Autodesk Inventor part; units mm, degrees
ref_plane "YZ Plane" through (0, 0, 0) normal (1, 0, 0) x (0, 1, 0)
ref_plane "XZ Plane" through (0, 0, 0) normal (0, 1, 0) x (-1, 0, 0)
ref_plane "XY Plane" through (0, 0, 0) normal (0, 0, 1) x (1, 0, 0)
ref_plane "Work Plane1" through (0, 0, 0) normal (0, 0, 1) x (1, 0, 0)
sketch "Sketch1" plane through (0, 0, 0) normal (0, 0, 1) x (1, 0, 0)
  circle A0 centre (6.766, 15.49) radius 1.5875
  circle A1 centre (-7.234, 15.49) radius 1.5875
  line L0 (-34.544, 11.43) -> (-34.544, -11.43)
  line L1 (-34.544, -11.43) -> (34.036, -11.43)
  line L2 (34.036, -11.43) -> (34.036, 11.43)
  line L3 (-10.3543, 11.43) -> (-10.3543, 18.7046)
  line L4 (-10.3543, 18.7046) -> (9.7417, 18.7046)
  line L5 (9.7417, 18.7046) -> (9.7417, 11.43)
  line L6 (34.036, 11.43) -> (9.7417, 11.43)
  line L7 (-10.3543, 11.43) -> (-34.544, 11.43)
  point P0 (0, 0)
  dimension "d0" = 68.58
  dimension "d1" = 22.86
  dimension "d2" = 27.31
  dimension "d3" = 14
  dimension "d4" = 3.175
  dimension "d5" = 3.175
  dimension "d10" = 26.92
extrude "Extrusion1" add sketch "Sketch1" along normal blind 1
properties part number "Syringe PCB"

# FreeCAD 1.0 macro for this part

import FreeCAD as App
import Part
import Sketcher
Q = App.Units.Quantity


def add_polygon(sketch, points):
    """Adds a closed chain of lines whose ends are joined by coincident constraints."""
    first, n = sketch.GeometryCount, len(points)
    for a, b in zip(points, points[1:] + points[:1]):
        sketch.addGeometry(Part.LineSegment(App.Vector(*a, 0), App.Vector(*b, 0)), False)
    for i in range(n):
        sketch.addConstraint(Sketcher.Constraint("Coincident", first + i, 2, first + (i + 1) % n, 1))

doc = App.newDocument("Part")
body = doc.addObject("PartDesign::Body", "Body")

sketch1 = doc.addObject("Sketcher::SketchObject", "Sketch")
body.addObject(sketch1)
sketch1.AttachmentSupport = (doc.XY_Plane, [""])
sketch1.MapMode = "FlatFace"
add_polygon(sketch1, [(-10.3543, 11.43), (-34.544, 11.43), (-34.544, -11.43), (34.036, -11.43), (34.036, 11.43), (9.7417, 11.43), (9.7417, 18.7046), (-10.3543, 18.7046)])
sketch1.addGeometry(Part.Circle(App.Vector(-7.234, 15.49, 0), App.Vector(0, 0, 1), 1.5875), False)
sketch1.addGeometry(Part.Circle(App.Vector(6.766, 15.49, 0), App.Vector(0, 0, 1), 1.5875), False)
sketch1.addConstraint([
    Sketcher.Constraint("Horizontal", 0),
    Sketcher.Constraint("Vertical", 1),
    Sketcher.Constraint("Horizontal", 2),
    Sketcher.Constraint("Vertical", 3),
    Sketcher.Constraint("Horizontal", 4),
    Sketcher.Constraint("Vertical", 5),
    Sketcher.Constraint("Horizontal", 6),
    Sketcher.Constraint("Vertical", 7),
    Sketcher.Constraint("Equal", 8, 9),
    Sketcher.Constraint("Horizontal", 8, 3, 9, 3),
    Sketcher.Constraint("Horizontal", 0, 2, 3, 2),
    Sketcher.Constraint("Diameter", 8, Q("0.125 in")),
    Sketcher.Constraint("DistanceX", 2, 1, 2, 2, Q("2.7 in")),
    Sketcher.Constraint("DistanceY", 1, 2, 1, 1, Q("0.9 in")),
    Sketcher.Constraint("DistanceX", 0, 2, 8, 3, Q("1.0752 in")),
    Sketcher.Constraint("DistanceX", 0, 2, -1, 1, Q("1.36 in")),
    Sketcher.Constraint("DistanceY", -1, 1, 0, 2, Q("0.45 in")),
    Sketcher.Constraint("DistanceX", 8, 3, 9, 3, 14.0),
    Sketcher.Constraint("DistanceY", 1, 2, 8, 3, 26.92),
    Sketcher.Constraint("DistanceY", 5, 1, 5, 2, Q("0.2864 in")),
    Sketcher.Constraint("DistanceX", 0, 2, 0, 1, 24.1897),
    Sketcher.Constraint("DistanceX", 4, 2, 4, 1, 24.2943),
])
pad1 = doc.addObject("PartDesign::Pad", "Pad")
body.addObject(pad1)
pad1.Profile = sketch1
pad1.Length = 1

doc.recompute()
